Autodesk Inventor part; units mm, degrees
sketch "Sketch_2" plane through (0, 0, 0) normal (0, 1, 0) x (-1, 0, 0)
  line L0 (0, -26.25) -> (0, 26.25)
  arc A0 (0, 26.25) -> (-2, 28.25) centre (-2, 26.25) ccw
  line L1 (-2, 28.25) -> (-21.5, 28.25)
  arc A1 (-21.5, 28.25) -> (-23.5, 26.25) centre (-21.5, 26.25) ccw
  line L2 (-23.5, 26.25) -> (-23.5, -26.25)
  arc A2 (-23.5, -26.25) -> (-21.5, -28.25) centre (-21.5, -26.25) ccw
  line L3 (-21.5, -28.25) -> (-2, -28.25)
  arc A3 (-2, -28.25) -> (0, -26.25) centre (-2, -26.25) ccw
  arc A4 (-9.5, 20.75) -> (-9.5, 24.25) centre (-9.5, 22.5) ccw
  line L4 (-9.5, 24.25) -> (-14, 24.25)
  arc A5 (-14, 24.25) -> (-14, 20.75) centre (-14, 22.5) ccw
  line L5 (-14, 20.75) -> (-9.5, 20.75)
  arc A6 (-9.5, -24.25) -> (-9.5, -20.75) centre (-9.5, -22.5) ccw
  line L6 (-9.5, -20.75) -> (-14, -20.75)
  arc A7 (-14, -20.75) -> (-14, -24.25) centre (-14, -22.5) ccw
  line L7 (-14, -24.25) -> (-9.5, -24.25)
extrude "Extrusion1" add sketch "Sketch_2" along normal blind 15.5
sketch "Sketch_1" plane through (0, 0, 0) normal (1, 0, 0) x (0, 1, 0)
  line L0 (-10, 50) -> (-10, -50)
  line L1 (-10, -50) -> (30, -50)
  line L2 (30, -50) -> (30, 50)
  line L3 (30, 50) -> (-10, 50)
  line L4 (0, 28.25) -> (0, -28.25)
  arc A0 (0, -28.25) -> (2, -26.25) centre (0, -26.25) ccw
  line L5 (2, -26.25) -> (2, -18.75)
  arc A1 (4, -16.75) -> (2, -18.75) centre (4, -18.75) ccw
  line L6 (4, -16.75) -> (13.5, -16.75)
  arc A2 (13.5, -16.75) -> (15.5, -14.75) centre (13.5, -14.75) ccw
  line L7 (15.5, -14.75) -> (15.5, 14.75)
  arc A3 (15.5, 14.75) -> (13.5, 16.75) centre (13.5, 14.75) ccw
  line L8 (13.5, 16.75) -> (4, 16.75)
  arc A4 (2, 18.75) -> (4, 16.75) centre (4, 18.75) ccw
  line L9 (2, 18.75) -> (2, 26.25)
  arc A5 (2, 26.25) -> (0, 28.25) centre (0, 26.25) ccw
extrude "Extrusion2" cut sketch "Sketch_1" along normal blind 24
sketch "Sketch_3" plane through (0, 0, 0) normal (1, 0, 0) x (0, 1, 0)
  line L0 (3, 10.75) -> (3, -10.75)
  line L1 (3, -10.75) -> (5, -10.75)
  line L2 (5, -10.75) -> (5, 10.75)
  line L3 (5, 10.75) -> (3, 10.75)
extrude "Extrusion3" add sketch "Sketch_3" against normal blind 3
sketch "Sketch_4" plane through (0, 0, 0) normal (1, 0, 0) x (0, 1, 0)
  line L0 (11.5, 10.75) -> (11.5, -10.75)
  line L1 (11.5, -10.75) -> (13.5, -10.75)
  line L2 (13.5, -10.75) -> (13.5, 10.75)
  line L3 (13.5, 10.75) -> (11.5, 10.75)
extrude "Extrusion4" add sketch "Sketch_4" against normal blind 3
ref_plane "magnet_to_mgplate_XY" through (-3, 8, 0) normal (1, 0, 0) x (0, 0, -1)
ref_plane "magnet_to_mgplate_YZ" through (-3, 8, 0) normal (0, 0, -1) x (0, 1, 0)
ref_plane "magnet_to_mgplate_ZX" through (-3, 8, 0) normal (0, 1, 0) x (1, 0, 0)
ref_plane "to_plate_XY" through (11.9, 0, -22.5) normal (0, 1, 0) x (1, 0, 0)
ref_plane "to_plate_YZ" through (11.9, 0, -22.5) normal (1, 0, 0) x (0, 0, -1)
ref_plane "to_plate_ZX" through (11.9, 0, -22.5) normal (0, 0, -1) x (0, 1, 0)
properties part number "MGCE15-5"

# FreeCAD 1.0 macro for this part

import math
import FreeCAD as App
import Part
import Sketcher
from FreeCAD import Vector


def add_polygon(sketch, points):
    """Adds a closed chain of lines whose ends are joined by coincident constraints."""
    first, n = sketch.GeometryCount, len(points)
    for a, b in zip(points, points[1:] + points[:1]):
        sketch.addGeometry(Part.LineSegment(App.Vector(*a, 0), App.Vector(*b, 0)), False)
    for i in range(n):
        sketch.addConstraint(Sketcher.Constraint("Coincident", first + i, 2, first + (i + 1) % n, 1))

doc = App.newDocument("Part")
body = doc.addObject("PartDesign::Body", "Body")

sketch1 = body.newObject("Sketcher::SketchObject", "Sketch")
sketch1.AttachmentSupport = (doc.getObject("XZ_Plane"), [""])
sketch1.MapMode = "FlatFace"
sketch1.addGeometry(Part.ArcOfCircle(Part.Circle(Vector(2, -26.2, 0), Vector(0, 0, 1), 2), math.radians(180), math.radians(270)), False)
sketch1.addGeometry(Part.LineSegment(Vector(0, -26.2, 0), Vector(0, 26.2, 0)), False)
sketch1.addGeometry(Part.ArcOfCircle(Part.Circle(Vector(2, 26.2, 0), Vector(0, 0, 1), 2), math.radians(90), math.radians(180)), False)
sketch1.addGeometry(Part.LineSegment(Vector(2, 28.2, 0), Vector(21.5, 28.2, 0)), False)
sketch1.addGeometry(Part.ArcOfCircle(Part.Circle(Vector(21.5, 26.2, 0), Vector(0, 0, 1), 2), math.radians(0), math.radians(90)), False)
sketch1.addGeometry(Part.LineSegment(Vector(23.5, 26.2, 0), Vector(23.5, -26.2, 0)), False)
sketch1.addGeometry(Part.ArcOfCircle(Part.Circle(Vector(21.5, -26.2, 0), Vector(0, 0, 1), 2), math.radians(-90), math.radians(0)), False)
sketch1.addGeometry(Part.LineSegment(Vector(21.5, -28.2, 0), Vector(2, -28.2, 0)), False)
sketch1.addGeometry(Part.ArcOfCircle(Part.Circle(Vector(9.5, -22.5, 0), Vector(0, 0, 1), 1.8), math.radians(90), math.radians(270)), False)
sketch1.addGeometry(Part.LineSegment(Vector(9.5, -24.2, 0), Vector(14, -24.2, 0)), False)
sketch1.addGeometry(Part.ArcOfCircle(Part.Circle(Vector(14, -22.5, 0), Vector(0, 0, 1), 1.8), math.radians(-90), math.radians(90)), False)
sketch1.addGeometry(Part.LineSegment(Vector(14, -20.8, 0), Vector(9.5, -20.8, 0)), False)
sketch1.addGeometry(Part.ArcOfCircle(Part.Circle(Vector(9.5, 22.5, 0), Vector(0, 0, 1), 1.8), math.radians(90), math.radians(270)), False)
sketch1.addGeometry(Part.LineSegment(Vector(9.5, 20.8, 0), Vector(14, 20.8, 0)), False)
sketch1.addGeometry(Part.ArcOfCircle(Part.Circle(Vector(14, 22.5, 0), Vector(0, 0, 1), 1.8), math.radians(-90), math.radians(90)), False)
sketch1.addGeometry(Part.LineSegment(Vector(14, 24.2, 0), Vector(9.5, 24.2, 0)), False)
sketch1.addConstraint(Sketcher.Constraint("Tangent", 0, 1, 1, 1))
sketch1.addConstraint(Sketcher.Constraint("Tangent", 1, 2, 2, 2))
sketch1.addConstraint(Sketcher.Constraint("Tangent", 2, 1, 3, 1))
sketch1.addConstraint(Sketcher.Constraint("Tangent", 3, 2, 4, 2))
sketch1.addConstraint(Sketcher.Constraint("Tangent", 4, 1, 5, 1))
sketch1.addConstraint(Sketcher.Constraint("Tangent", 5, 2, 6, 2))
sketch1.addConstraint(Sketcher.Constraint("Tangent", 6, 1, 7, 1))
sketch1.addConstraint(Sketcher.Constraint("Tangent", 7, 2, 0, 2))
sketch1.addConstraint(Sketcher.Constraint("Tangent", 8, 2, 9, 1))
sketch1.addConstraint(Sketcher.Constraint("Tangent", 9, 2, 10, 1))
sketch1.addConstraint(Sketcher.Constraint("Tangent", 10, 2, 11, 1))
sketch1.addConstraint(Sketcher.Constraint("Tangent", 11, 2, 8, 1))
sketch1.addConstraint(Sketcher.Constraint("Tangent", 12, 2, 13, 1))
sketch1.addConstraint(Sketcher.Constraint("Tangent", 13, 2, 14, 1))
sketch1.addConstraint(Sketcher.Constraint("Tangent", 14, 2, 15, 1))
sketch1.addConstraint(Sketcher.Constraint("Tangent", 15, 2, 12, 1))
sketch1.addConstraint(Sketcher.Constraint("Vertical", 1))
sketch1.addConstraint(Sketcher.Constraint("Horizontal", 3))
sketch1.addConstraint(Sketcher.Constraint("Vertical", 5))
sketch1.addConstraint(Sketcher.Constraint("Horizontal", 7))
sketch1.addConstraint(Sketcher.Constraint("Horizontal", 9))
sketch1.addConstraint(Sketcher.Constraint("Horizontal", 11))
sketch1.addConstraint(Sketcher.Constraint("Horizontal", 13))
sketch1.addConstraint(Sketcher.Constraint("Horizontal", 15))
sketch1.addConstraint(Sketcher.Constraint("Equal", 0, 2))
sketch1.addConstraint(Sketcher.Constraint("Equal", 2, 4))
sketch1.addConstraint(Sketcher.Constraint("Equal", 4, 6))
sketch1.addConstraint(Sketcher.Constraint("Equal", 10, 12))
sketch1.addConstraint(Sketcher.Constraint("Symmetric", 0, 1, 1, 2, -1, 1))
sketch1.addConstraint(Sketcher.Constraint("Symmetric", 8, 3, 12, 3, -1))
sketch1.addConstraint(Sketcher.Constraint("Vertical", 10, 3, 14, 3))
sketch1.addConstraint(Sketcher.Constraint("Radius", 0, 2.0))
sketch1.addConstraint(Sketcher.Constraint("Radius", 8, 1.75))
sketch1.addConstraint(Sketcher.Constraint("DistanceX", 3, 1, 3, 2, 19.5))
sketch1.addConstraint(Sketcher.Constraint("DistanceX", 9, 1, 9, 2, 4.5))
sketch1.addConstraint(Sketcher.Constraint("DistanceY", 1, 1, 1, 2, 52.5))
sketch1.addConstraint(Sketcher.Constraint("DistanceX", -1, 1, 10, 3, 14.0))
sketch1.addConstraint(Sketcher.Constraint("DistanceY", 8, 3, 12, 3, 45.0))
pad1 = body.newObject("PartDesign::Pad", "Pad")
pad1.Profile = sketch1
pad1.Length = 15.5
pad1.Reversed = True

sketch2 = body.newObject("Sketcher::SketchObject", "Sketch001")
sketch2.AttachmentSupport = (doc.getObject("YZ_Plane"), [""])
sketch2.MapMode = "FlatFace"
add_polygon(sketch2, [(30, 50), (-10, 50), (-10, -50), (30, -50)])
sketch2.addGeometry(Part.LineSegment(Vector(0, -28.2, 0), Vector(0, 28.2, 0)), False)
sketch2.addGeometry(Part.ArcOfCircle(Part.Circle(Vector(0, 26.2, 0), Vector(0, 0, 1), 2), math.radians(0), math.radians(90)), False)
sketch2.addGeometry(Part.LineSegment(Vector(2, 26.2, 0), Vector(2, 18.8, 0)), False)
sketch2.addGeometry(Part.ArcOfCircle(Part.Circle(Vector(4, 18.8, 0), Vector(0, 0, 1), 2), math.radians(180), math.radians(270)), False)
sketch2.addGeometry(Part.LineSegment(Vector(4, 16.8, 0), Vector(13.5, 16.8, 0)), False)
sketch2.addGeometry(Part.ArcOfCircle(Part.Circle(Vector(13.5, 14.8, 0), Vector(0, 0, 1), 2), math.radians(0), math.radians(90)), False)
sketch2.addGeometry(Part.LineSegment(Vector(15.5, 14.8, 0), Vector(15.5, -14.8, 0)), False)
sketch2.addGeometry(Part.ArcOfCircle(Part.Circle(Vector(13.5, -14.8, 0), Vector(0, 0, 1), 2), math.radians(-90), math.radians(0)), False)
sketch2.addGeometry(Part.LineSegment(Vector(13.5, -16.8, 0), Vector(4, -16.8, 0)), False)
sketch2.addGeometry(Part.ArcOfCircle(Part.Circle(Vector(4, -18.8, 0), Vector(0, 0, 1), 2), math.radians(90), math.radians(180)), False)
sketch2.addGeometry(Part.LineSegment(Vector(2, -18.8, 0), Vector(2, -26.2, 0)), False)
sketch2.addGeometry(Part.ArcOfCircle(Part.Circle(Vector(0, -26.2, 0), Vector(0, 0, 1), 2), math.radians(-90), math.radians(0)), False)
sketch2.addConstraint(Sketcher.Constraint("Coincident", 4, 2, 5, 2))
sketch2.addConstraint(Sketcher.Constraint("Tangent", 5, 1, 6, 1))
sketch2.addConstraint(Sketcher.Constraint("Tangent", 6, 2, 7, 1))
sketch2.addConstraint(Sketcher.Constraint("Tangent", 7, 2, 8, 1))
sketch2.addConstraint(Sketcher.Constraint("Tangent", 8, 2, 9, 2))
sketch2.addConstraint(Sketcher.Constraint("Tangent", 9, 1, 10, 1))
sketch2.addConstraint(Sketcher.Constraint("Tangent", 10, 2, 11, 2))
sketch2.addConstraint(Sketcher.Constraint("Tangent", 11, 1, 12, 1))
sketch2.addConstraint(Sketcher.Constraint("Tangent", 12, 2, 13, 1))
sketch2.addConstraint(Sketcher.Constraint("Tangent", 13, 2, 14, 1))
sketch2.addConstraint(Sketcher.Constraint("Tangent", 14, 2, 15, 2))
sketch2.addConstraint(Sketcher.Constraint("Coincident", 15, 1, 4, 1))
sketch2.addConstraint(Sketcher.Constraint("Horizontal", 0))
sketch2.addConstraint(Sketcher.Constraint("Vertical", 1))
sketch2.addConstraint(Sketcher.Constraint("Horizontal", 2))
sketch2.addConstraint(Sketcher.Constraint("Vertical", 3))
sketch2.addConstraint(Sketcher.Constraint("Vertical", 4))
sketch2.addConstraint(Sketcher.Constraint("Vertical", 6))
sketch2.addConstraint(Sketcher.Constraint("Horizontal", 8))
sketch2.addConstraint(Sketcher.Constraint("Vertical", 10))
sketch2.addConstraint(Sketcher.Constraint("Horizontal", 12))
sketch2.addConstraint(Sketcher.Constraint("Vertical", 14))
sketch2.addConstraint(Sketcher.Constraint("Equal", 5, 7))
sketch2.addConstraint(Sketcher.Constraint("Equal", 7, 9))
sketch2.addConstraint(Sketcher.Constraint("Equal", 9, 11))
sketch2.addConstraint(Sketcher.Constraint("Equal", 11, 13))
sketch2.addConstraint(Sketcher.Constraint("Equal", 13, 15))
sketch2.addConstraint(Sketcher.Constraint("Symmetric", 5, 3, 15, 3, -1, 1))
sketch2.addConstraint(Sketcher.Constraint("Symmetric", 7, 3, 13, 3, -1))
sketch2.addConstraint(Sketcher.Constraint("PointOnObject", 4, 2, -2))
sketch2.addConstraint(Sketcher.Constraint("Radius", 5, 2.0))
sketch2.addConstraint(Sketcher.Constraint("DistanceX", 0, 2, 0, 1, 40.0))
sketch2.addConstraint(Sketcher.Constraint("DistanceY", 1, 2, 1, 1, 100.0))
sketch2.addConstraint(Sketcher.Constraint("DistanceX", 8, 1, 8, 2, 9.5))
sketch2.addConstraint(Sketcher.Constraint("DistanceY", 4, 1, 4, 2, 56.5))
sketch2.addConstraint(Sketcher.Constraint("DistanceY", 6, 2, 6, 1, 7.5))
sketch2.addConstraint(Sketcher.Constraint("DistanceX", 0, 2, -1, 1, 10.0))
sketch2.addConstraint(Sketcher.Constraint("DistanceY", -1, 1, 0, 2, 50.0))
pocket1 = body.newObject("PartDesign::Pocket", "Pocket")
pocket1.Profile = sketch2
pocket1.Length = 24
pocket1.Reversed = True

sketch3 = body.newObject("Sketcher::SketchObject", "Sketch002")
sketch3.AttachmentSupport = (doc.getObject("YZ_Plane"), [""])
sketch3.MapMode = "FlatFace"
add_polygon(sketch3, [(5, 10.8), (3, 10.8), (3, -10.8), (5, -10.8)])
sketch3.addConstraint(Sketcher.Constraint("Horizontal", 0))
sketch3.addConstraint(Sketcher.Constraint("Vertical", 1))
sketch3.addConstraint(Sketcher.Constraint("Horizontal", 2))
sketch3.addConstraint(Sketcher.Constraint("Vertical", 3))
sketch3.addConstraint(Sketcher.Constraint("DistanceX", 0, 2, 0, 1, 2.0))
sketch3.addConstraint(Sketcher.Constraint("DistanceY", 1, 2, 1, 1, 21.5))
sketch3.addConstraint(Sketcher.Constraint("DistanceX", -1, 1, 0, 2, 3.0))
sketch3.addConstraint(Sketcher.Constraint("DistanceY", -1, 1, 0, 2, 10.75))
pad2 = body.newObject("PartDesign::Pad", "Pad001")
pad2.Profile = sketch3
pad2.Length = 3
pad2.Reversed = True

sketch4 = body.newObject("Sketcher::SketchObject", "Sketch003")
sketch4.AttachmentSupport = (doc.getObject("YZ_Plane"), [""])
sketch4.MapMode = "FlatFace"
add_polygon(sketch4, [(13.5, 10.8), (11.5, 10.8), (11.5, -10.8), (13.5, -10.8)])
sketch4.addConstraint(Sketcher.Constraint("Horizontal", 0))
sketch4.addConstraint(Sketcher.Constraint("Vertical", 1))
sketch4.addConstraint(Sketcher.Constraint("Horizontal", 2))
sketch4.addConstraint(Sketcher.Constraint("Vertical", 3))
sketch4.addConstraint(Sketcher.Constraint("DistanceX", 0, 2, 0, 1, 2.0))
sketch4.addConstraint(Sketcher.Constraint("DistanceY", 1, 2, 1, 1, 21.5))
sketch4.addConstraint(Sketcher.Constraint("DistanceX", -1, 1, 0, 2, 11.5))
sketch4.addConstraint(Sketcher.Constraint("DistanceY", -1, 1, 0, 2, 10.75))
pad3 = body.newObject("PartDesign::Pad", "Pad002")
pad3.Profile = sketch4
pad3.Length = 3
pad3.Reversed = True

doc.recompute()
